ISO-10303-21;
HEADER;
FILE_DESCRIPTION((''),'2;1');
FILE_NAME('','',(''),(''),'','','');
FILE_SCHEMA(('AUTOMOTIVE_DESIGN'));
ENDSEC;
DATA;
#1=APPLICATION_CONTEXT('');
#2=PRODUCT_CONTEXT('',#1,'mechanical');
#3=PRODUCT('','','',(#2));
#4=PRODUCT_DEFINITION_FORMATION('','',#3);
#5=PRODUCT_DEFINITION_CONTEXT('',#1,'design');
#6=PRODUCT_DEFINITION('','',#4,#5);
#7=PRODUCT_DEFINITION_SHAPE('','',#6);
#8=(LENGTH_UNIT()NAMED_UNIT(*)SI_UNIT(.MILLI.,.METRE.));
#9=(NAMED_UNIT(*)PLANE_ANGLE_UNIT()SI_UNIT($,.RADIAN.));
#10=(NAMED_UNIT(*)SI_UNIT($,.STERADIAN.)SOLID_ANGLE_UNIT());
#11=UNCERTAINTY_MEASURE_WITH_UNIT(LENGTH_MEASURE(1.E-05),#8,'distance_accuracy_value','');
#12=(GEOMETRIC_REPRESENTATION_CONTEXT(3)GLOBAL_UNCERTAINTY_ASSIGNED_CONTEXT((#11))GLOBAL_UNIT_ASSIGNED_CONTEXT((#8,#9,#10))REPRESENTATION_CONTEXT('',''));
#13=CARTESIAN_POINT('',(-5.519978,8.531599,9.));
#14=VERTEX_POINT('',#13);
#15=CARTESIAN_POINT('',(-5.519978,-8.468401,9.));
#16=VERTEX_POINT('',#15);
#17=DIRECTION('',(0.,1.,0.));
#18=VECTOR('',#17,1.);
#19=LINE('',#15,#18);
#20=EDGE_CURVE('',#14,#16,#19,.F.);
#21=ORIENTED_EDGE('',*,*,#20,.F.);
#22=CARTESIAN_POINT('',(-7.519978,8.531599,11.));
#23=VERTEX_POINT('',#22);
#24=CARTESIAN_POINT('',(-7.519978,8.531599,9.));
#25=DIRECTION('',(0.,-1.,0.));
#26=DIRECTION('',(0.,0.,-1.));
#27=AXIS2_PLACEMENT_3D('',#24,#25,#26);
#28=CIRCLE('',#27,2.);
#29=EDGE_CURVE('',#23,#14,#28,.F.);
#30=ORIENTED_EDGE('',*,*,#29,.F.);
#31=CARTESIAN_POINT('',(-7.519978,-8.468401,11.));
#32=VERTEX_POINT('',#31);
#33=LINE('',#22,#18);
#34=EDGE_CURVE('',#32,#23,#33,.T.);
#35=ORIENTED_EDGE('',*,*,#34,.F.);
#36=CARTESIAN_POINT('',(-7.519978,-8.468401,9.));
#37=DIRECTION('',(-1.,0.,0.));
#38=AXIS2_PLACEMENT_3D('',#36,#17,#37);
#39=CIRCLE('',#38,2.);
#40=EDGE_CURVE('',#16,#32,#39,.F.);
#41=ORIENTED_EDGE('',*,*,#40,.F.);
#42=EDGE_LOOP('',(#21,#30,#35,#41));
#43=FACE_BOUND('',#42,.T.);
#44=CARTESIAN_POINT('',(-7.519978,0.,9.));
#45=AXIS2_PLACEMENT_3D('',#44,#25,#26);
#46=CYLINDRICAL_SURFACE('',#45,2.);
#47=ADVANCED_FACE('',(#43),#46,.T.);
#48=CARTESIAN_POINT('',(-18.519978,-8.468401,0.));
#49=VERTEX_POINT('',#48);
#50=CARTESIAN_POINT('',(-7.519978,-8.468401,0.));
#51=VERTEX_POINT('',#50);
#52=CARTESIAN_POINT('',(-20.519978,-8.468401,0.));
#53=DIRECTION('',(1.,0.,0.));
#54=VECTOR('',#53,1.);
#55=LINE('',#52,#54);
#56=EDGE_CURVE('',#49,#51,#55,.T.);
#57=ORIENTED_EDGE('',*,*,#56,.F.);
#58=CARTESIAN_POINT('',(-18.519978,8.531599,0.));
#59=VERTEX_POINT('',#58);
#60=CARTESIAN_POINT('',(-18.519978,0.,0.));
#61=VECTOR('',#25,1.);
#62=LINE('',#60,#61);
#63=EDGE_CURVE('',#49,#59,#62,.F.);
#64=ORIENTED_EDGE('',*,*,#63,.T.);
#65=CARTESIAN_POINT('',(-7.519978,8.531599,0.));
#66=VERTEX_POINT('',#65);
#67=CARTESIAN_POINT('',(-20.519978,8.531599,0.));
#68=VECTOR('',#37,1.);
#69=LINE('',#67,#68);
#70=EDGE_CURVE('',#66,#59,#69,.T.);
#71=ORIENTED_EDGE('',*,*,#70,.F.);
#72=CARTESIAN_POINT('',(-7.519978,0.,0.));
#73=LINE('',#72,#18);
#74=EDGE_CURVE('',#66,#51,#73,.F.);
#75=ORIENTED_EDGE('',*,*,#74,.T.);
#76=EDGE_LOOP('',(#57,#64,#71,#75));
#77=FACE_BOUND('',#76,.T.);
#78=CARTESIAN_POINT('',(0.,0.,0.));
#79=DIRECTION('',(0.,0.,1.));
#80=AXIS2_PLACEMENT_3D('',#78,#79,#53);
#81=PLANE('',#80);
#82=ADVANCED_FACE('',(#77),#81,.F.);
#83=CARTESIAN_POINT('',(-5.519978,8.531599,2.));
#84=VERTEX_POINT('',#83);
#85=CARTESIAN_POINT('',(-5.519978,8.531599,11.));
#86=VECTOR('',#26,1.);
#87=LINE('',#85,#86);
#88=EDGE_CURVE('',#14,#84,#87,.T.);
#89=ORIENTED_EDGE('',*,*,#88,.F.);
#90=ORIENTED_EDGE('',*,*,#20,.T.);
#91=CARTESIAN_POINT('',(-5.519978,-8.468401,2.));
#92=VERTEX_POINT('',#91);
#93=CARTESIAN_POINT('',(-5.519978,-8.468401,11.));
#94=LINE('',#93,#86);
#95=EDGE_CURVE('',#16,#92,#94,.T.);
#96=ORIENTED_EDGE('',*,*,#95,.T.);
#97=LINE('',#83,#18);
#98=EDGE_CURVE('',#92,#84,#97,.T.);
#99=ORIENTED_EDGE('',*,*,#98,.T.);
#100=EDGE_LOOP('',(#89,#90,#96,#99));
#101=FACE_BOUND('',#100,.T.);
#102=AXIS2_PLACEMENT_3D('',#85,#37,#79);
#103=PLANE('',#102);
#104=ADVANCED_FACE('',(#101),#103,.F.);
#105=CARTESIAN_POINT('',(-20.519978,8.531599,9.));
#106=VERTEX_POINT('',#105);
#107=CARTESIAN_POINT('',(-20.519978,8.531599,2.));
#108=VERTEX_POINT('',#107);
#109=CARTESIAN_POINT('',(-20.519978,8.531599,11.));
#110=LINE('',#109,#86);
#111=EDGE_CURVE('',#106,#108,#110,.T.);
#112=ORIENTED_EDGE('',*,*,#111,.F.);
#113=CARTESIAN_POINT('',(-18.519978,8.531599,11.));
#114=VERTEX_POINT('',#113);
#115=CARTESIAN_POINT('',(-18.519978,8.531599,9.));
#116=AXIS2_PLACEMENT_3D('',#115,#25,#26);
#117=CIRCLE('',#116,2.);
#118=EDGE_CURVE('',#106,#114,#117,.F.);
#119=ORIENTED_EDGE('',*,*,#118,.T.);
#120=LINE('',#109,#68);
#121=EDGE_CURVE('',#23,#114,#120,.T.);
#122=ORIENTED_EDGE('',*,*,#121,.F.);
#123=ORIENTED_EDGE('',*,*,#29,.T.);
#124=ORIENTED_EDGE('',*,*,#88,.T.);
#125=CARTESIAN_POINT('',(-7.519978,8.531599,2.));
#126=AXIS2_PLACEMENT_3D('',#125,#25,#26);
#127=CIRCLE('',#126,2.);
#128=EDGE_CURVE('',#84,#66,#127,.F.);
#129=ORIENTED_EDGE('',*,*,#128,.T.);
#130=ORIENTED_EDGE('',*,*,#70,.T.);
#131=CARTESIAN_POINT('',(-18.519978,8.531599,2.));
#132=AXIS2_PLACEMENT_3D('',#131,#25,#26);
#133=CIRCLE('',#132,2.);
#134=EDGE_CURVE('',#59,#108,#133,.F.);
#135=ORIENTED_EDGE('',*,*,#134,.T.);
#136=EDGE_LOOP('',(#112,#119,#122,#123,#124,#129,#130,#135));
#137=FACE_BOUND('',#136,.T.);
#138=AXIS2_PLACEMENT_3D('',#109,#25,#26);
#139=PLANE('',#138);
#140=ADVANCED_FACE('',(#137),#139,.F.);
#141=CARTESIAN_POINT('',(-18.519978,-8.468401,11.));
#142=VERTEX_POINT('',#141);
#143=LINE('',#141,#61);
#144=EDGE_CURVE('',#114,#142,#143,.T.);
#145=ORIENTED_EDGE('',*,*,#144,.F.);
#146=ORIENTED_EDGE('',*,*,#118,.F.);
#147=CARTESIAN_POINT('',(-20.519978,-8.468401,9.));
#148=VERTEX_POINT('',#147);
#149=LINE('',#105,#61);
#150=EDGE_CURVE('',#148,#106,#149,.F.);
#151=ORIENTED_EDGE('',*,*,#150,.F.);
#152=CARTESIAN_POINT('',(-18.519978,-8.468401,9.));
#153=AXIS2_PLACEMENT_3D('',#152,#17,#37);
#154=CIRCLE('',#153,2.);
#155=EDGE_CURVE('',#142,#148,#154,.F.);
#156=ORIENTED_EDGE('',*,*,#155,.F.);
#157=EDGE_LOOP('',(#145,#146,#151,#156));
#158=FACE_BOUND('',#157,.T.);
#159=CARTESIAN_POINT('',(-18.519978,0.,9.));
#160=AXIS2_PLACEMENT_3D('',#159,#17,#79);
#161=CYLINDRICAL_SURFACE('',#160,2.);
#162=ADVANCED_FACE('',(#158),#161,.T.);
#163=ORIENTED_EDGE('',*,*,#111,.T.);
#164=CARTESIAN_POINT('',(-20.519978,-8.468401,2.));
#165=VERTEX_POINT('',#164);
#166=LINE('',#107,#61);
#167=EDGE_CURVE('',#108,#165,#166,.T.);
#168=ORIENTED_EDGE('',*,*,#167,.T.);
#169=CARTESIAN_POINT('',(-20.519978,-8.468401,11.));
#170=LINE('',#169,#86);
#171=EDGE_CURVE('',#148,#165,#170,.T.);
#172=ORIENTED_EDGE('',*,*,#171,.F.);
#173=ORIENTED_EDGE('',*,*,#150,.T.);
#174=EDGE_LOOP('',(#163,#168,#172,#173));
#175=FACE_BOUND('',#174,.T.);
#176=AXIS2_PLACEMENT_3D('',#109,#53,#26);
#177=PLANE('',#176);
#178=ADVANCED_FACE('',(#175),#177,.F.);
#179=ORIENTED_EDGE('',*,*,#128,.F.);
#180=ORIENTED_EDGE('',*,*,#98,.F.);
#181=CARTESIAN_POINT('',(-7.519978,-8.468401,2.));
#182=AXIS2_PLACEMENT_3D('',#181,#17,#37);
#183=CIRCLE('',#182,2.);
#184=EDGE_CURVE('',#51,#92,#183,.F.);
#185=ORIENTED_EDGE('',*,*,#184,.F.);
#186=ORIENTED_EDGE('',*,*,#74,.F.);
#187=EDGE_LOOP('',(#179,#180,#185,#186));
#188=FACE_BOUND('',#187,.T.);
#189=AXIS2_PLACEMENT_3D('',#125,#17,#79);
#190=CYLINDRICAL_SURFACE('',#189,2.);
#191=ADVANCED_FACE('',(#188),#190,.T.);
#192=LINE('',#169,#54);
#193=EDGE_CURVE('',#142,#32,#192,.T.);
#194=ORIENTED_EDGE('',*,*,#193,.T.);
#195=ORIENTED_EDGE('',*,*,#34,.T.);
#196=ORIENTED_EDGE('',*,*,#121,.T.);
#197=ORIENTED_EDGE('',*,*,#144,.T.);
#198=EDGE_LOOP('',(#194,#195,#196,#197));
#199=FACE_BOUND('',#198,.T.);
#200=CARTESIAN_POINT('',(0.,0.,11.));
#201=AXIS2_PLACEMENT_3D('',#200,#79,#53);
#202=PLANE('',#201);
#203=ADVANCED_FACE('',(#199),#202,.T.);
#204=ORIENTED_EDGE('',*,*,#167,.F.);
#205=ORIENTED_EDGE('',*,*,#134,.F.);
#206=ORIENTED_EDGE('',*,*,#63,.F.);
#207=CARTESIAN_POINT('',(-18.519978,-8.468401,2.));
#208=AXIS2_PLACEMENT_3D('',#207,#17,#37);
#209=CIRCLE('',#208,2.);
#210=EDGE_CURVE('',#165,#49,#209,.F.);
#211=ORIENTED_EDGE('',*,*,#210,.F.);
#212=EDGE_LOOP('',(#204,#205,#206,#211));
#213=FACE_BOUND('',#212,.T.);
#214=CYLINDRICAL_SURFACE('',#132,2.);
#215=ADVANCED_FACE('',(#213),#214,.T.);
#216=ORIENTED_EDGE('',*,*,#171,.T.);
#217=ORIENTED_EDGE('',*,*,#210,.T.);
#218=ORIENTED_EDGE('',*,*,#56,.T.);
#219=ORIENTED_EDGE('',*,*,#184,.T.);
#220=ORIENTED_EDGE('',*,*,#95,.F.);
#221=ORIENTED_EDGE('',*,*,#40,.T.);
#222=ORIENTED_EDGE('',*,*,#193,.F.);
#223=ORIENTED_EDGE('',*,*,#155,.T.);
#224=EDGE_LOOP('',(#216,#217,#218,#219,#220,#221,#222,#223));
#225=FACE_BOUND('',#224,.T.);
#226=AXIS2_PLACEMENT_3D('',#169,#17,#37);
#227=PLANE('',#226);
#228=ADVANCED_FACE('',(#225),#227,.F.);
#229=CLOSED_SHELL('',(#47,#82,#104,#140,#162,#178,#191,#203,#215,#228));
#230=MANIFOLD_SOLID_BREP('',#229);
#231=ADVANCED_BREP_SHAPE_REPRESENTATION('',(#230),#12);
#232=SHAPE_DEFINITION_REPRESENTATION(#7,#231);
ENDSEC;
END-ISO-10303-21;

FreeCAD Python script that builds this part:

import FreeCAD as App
import Part
import Sketcher
from FreeCAD import Vector
Q = App.Units.Quantity


def edges_at(feature, points):
    """Names of the edges that pass closest to the given points."""
    edges = feature.Shape.Edges
    near = lambda p: min(range(len(edges)), key=lambda i: edges[i].distToShape(Part.Vertex(*p))[0])
    return sorted({f"Edge{near(p) + 1}" for p in points})

doc = App.newDocument("Part")
body = doc.addObject("PartDesign::Body", "Body")

# Sketch on XY plane
sketch1 = body.newObject("Sketcher::SketchObject", "Sketch")
sketch1.AttachmentSupport = (doc.getObject("XY_Plane"), [""])
sketch1.MapMode = "FlatFace"
sketch1.addGeometry([
    Part.LineSegment(Vector(-21, 9, 0), Vector(-21, -8, 0)),
    Part.LineSegment(Vector(-21, -8, 0), Vector(-6, -8, 0)),
    Part.LineSegment(Vector(-6, -8, 0), Vector(-6, 9, 0)),
    Part.LineSegment(Vector(-6, 9, 0), Vector(-21, 9, 0)),
], False)
sketch1.addConstraint([
    Sketcher.Constraint("Coincident", 0, 2, 1, 1),
    Sketcher.Constraint("Coincident", 1, 2, 2, 1),
    Sketcher.Constraint("Coincident", 2, 2, 3, 1),
    Sketcher.Constraint("Coincident", 3, 2, 0, 1),
    Sketcher.Constraint("Vertical", 0),
    Sketcher.Constraint("Horizontal", 1),
    Sketcher.Constraint("Vertical", 2),
    Sketcher.Constraint("Horizontal", 3),
    Sketcher.Constraint("DistanceX", 1, 1, 1, 2, Q("15 mm")),
    Sketcher.Constraint("DistanceY", 0, 2, 0, 1, Q("17 mm")),
    Sketcher.Constraint("DistanceY", 0, 2, -1, 1, Q("8.468401 mm")),
    Sketcher.Constraint("DistanceX", 0, 2, -1, 1, Q("20.519978 mm")),
])
pad1 = body.newObject("PartDesign::Pad", "Pad")
pad1.Profile = sketch1
pad1.Length = 11
doc.recompute()

fillet = body.newObject("PartDesign::Fillet", "Fillet")
fillet.Base = (pad1, edges_at(pad1, [
    (-5.52, 0.032, 11),
    (-20.52, 0.032, 11),
    (-5.52, 0.032, 0),
    (-20.52, 0.032, 0),
]))
fillet.Radius = 2

doc.recompute()
